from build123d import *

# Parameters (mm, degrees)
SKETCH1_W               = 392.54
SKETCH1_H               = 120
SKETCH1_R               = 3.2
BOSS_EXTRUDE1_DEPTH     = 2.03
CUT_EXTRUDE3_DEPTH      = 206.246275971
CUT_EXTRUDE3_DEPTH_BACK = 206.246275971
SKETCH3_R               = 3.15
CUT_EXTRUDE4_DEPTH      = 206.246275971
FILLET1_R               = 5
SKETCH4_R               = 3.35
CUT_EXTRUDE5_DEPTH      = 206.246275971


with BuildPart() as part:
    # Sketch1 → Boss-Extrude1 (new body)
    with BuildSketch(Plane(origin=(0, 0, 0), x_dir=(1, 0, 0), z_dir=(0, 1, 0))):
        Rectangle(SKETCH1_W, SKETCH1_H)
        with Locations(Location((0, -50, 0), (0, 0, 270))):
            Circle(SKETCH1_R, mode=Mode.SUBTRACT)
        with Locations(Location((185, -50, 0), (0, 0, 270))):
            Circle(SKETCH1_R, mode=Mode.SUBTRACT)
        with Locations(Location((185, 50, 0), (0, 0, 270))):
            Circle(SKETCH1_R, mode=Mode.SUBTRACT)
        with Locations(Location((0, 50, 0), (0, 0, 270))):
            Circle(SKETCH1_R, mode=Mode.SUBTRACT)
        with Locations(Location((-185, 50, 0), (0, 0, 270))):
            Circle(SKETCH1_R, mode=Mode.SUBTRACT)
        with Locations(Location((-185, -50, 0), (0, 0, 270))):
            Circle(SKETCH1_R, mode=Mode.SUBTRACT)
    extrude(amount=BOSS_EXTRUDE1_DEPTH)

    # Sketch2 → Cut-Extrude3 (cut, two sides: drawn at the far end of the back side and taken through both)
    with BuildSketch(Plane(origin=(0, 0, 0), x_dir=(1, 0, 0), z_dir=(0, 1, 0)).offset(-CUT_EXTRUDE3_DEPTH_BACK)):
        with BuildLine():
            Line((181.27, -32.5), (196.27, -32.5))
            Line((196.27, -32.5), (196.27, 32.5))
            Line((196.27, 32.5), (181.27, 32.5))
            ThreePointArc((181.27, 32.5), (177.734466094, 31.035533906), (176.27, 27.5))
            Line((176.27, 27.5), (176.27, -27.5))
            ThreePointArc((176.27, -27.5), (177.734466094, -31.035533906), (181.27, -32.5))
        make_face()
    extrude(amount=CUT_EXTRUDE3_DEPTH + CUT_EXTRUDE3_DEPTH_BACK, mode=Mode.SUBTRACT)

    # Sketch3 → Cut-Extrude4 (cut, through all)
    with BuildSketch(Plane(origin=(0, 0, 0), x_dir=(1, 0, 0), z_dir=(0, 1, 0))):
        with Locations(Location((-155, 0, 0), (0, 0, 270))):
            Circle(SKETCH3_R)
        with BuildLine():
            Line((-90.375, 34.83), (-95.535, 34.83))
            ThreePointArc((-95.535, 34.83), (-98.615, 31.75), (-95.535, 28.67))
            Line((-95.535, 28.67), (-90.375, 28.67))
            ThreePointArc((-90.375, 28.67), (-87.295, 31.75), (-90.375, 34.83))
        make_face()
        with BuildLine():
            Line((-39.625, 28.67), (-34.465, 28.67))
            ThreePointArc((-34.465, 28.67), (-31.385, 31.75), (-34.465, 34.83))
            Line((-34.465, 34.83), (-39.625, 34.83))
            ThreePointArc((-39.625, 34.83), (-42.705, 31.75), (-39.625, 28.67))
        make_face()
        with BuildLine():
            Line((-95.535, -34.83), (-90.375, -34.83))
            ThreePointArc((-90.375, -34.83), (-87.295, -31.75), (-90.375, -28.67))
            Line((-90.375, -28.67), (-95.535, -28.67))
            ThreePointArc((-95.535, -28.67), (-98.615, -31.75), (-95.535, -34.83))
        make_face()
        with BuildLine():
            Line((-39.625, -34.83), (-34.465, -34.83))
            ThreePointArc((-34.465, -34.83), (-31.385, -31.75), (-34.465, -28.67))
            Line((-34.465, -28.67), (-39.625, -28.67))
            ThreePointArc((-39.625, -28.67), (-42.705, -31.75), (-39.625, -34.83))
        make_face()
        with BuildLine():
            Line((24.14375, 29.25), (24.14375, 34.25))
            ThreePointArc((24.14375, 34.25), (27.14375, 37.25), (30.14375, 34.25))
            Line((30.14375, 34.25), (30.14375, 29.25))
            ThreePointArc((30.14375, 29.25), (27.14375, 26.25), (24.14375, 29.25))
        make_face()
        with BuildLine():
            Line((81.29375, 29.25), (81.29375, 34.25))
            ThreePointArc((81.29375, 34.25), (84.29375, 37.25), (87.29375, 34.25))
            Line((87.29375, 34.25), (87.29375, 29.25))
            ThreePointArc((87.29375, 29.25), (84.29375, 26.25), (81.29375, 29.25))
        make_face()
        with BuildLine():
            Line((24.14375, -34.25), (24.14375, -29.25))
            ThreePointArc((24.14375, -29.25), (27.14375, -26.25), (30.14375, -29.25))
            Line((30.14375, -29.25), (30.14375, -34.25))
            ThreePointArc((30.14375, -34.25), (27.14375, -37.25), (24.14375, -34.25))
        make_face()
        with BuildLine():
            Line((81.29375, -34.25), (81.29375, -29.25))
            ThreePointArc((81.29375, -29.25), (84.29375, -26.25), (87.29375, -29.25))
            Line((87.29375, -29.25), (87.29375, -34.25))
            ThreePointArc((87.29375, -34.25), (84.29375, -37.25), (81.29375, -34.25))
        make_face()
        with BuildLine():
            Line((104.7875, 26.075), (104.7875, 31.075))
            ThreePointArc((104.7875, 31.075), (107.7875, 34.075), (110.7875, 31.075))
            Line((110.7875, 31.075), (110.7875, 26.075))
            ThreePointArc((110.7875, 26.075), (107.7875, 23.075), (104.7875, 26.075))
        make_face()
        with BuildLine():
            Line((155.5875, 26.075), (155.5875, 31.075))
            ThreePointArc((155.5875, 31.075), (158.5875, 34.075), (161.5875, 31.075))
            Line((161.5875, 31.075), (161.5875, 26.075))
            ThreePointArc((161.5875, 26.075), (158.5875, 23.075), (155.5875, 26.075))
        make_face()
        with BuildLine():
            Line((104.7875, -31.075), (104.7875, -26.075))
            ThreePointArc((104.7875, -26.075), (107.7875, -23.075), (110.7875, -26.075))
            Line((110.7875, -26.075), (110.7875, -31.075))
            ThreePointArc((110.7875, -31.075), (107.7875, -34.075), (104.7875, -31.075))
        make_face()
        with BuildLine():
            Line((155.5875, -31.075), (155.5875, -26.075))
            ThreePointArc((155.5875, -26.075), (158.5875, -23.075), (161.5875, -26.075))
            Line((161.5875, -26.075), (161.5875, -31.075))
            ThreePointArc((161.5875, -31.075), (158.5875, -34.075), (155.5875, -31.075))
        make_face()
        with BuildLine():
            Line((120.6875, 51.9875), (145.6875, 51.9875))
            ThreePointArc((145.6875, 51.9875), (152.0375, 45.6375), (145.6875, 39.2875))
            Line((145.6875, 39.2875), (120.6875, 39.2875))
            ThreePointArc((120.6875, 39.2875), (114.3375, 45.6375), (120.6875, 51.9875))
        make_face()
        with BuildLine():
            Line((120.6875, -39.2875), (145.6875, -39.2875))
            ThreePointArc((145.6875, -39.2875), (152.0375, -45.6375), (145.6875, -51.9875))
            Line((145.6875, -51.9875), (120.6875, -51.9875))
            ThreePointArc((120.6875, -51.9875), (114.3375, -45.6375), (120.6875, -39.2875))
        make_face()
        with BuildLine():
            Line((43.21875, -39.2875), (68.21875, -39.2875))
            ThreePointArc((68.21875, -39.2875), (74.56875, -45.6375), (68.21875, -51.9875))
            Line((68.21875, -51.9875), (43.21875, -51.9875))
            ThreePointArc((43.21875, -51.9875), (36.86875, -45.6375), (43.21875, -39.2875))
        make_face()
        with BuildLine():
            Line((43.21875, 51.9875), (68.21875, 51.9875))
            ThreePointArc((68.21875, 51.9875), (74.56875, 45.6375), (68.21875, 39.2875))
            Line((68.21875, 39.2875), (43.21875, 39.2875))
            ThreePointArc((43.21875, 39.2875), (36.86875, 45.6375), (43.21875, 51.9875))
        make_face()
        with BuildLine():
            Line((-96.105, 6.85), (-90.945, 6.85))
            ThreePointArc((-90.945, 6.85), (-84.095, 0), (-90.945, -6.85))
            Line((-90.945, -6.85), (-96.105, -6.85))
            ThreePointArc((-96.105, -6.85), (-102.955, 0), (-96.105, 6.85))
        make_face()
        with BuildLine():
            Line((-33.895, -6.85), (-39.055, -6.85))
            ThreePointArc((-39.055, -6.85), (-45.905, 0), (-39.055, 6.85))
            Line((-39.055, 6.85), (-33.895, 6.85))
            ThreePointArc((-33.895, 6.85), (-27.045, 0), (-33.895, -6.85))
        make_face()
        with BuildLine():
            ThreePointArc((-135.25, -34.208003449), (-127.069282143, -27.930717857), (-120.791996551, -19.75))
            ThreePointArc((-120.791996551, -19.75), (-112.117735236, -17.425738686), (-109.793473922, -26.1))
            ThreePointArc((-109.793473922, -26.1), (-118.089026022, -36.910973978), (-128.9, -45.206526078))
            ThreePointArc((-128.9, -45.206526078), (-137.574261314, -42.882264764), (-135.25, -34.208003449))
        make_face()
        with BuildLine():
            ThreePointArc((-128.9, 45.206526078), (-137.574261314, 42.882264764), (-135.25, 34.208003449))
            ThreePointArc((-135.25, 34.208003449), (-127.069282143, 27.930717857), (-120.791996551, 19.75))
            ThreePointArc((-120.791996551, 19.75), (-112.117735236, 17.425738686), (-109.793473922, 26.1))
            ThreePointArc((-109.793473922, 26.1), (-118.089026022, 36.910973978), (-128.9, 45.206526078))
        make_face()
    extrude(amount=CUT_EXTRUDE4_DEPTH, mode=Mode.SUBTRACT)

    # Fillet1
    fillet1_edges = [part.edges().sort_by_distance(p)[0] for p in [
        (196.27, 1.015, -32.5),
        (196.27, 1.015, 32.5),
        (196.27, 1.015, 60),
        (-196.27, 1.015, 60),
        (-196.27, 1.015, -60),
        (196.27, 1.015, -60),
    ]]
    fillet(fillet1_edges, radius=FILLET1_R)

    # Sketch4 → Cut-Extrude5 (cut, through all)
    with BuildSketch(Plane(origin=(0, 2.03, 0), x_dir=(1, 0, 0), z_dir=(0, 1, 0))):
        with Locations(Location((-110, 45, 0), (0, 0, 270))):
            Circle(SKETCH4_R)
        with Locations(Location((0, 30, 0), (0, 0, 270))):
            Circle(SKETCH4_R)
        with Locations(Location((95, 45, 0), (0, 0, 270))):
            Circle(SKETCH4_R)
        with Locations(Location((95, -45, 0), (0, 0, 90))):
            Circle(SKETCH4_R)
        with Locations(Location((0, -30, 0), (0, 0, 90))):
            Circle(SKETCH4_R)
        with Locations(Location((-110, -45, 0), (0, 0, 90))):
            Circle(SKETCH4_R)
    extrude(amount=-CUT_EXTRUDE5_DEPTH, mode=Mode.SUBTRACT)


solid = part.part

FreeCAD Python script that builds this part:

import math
import FreeCAD as App
import Part
import Sketcher
from FreeCAD import Vector


def edges_at(feature, points):
    """Names of the edges that pass closest to the given points."""
    edges = feature.Shape.Edges
    near = lambda p: min(range(len(edges)), key=lambda i: edges[i].distToShape(Part.Vertex(*p))[0])
    return sorted({f"Edge{near(p) + 1}" for p in points})


def add_polygon(sketch, points):
    """Adds a closed chain of lines whose ends are joined by coincident constraints."""
    first, n = sketch.GeometryCount, len(points)
    for a, b in zip(points, points[1:] + points[:1]):
        sketch.addGeometry(Part.LineSegment(App.Vector(*a, 0), App.Vector(*b, 0)), False)
    for i in range(n):
        sketch.addConstraint(Sketcher.Constraint("Coincident", first + i, 2, first + (i + 1) % n, 1))

doc = App.newDocument("Part")
body = doc.addObject("PartDesign::Body", "Body")

# Sketch on XZ plane
sketch1 = body.newObject("Sketcher::SketchObject", "Sketch")
sketch1.AttachmentSupport = (doc.getObject("XZ_Plane"), [""])
sketch1.MapMode = "FlatFace"
add_polygon(sketch1, [(-196.27, -60), (-196.27, 60), (196.27, 60), (196.27, -60)])  # lines 0-3
sketch1.addGeometry(Part.Circle(Vector(-185, 50, 0), Vector(0, 0, 1), 3.2), False)  # 4
sketch1.addGeometry(Part.Circle(Vector(0, 50, 0), Vector(0, 0, 1), 3.2), False)  # 5
sketch1.addGeometry(Part.Circle(Vector(185, 50, 0), Vector(0, 0, 1), 3.2), False)  # 6
sketch1.addGeometry(Part.Circle(Vector(-185, -50, 0), Vector(0, 0, 1), 3.2), False)  # 7
sketch1.addGeometry(Part.Circle(Vector(0, -50, 0), Vector(0, 0, 1), 3.2), False)  # 8
sketch1.addGeometry(Part.Circle(Vector(185, -50, 0), Vector(0, 0, 1), 3.2), False)  # 9
sketch1.addConstraint(Sketcher.Constraint("Vertical", 0))
sketch1.addConstraint(Sketcher.Constraint("Horizontal", 1))
sketch1.addConstraint(Sketcher.Constraint("Vertical", 2))
sketch1.addConstraint(Sketcher.Constraint("Horizontal", 3))
sketch1.addConstraint(Sketcher.Constraint("Equal", 4, 5))
sketch1.addConstraint(Sketcher.Constraint("Equal", 5, 6))
sketch1.addConstraint(Sketcher.Constraint("Equal", 6, 7))
sketch1.addConstraint(Sketcher.Constraint("Equal", 7, 8))
sketch1.addConstraint(Sketcher.Constraint("Equal", 8, 9))
sketch1.addConstraint(Sketcher.Constraint("Symmetric", 6, 3, 7, 3, -1, 1))
sketch1.addConstraint(Sketcher.Constraint("Symmetric", 5, 3, 8, 3, -1, 1))
sketch1.addConstraint(Sketcher.Constraint("Symmetric", 4, 3, 9, 3, -1, 1))
sketch1.addConstraint(Sketcher.Constraint("Symmetric", 0, 2, 2, 2, -1, 1))
sketch1.addConstraint(Sketcher.Constraint("Symmetric", 4, 3, 6, 3, -2))
sketch1.addConstraint(Sketcher.Constraint("PointOnObject", 5, 3, -2))
sketch1.addConstraint(Sketcher.Constraint("Horizontal", 4, 3, 5, 3))
sketch1.addConstraint(Sketcher.Constraint("Diameter", 4, 6.4))
sketch1.addConstraint(Sketcher.Constraint("DistanceY", 0, 1, 0, 2, 120.0))
sketch1.addConstraint(Sketcher.Constraint("DistanceX", 4, 3, -1, 1, 185.0))
sketch1.addConstraint(Sketcher.Constraint("DistanceY", -1, 1, 4, 3, 50.0))
sketch1.addConstraint(Sketcher.Constraint("DistanceX", 1, 1, 1, 2, 392.54))
pad1 = body.newObject("PartDesign::Pad", "Pad")
pad1.Profile = sketch1
pad1.Length = 2.03
pad1.Reversed = True

# Sketch on XZ plane
sketch2 = body.newObject("Sketcher::SketchObject", "Sketch001")
sketch2.AttachmentSupport = (doc.getObject("XZ_Plane"), [""])
sketch2.MapMode = "FlatFace"
sketch2.addGeometry(Part.LineSegment(Vector(181.27, 32.5, 0), Vector(196.27, 32.5, 0)), False)
sketch2.addGeometry(Part.LineSegment(Vector(196.27, 32.5, 0), Vector(196.27, -32.5, 0)), False)
sketch2.addGeometry(Part.LineSegment(Vector(196.27, -32.5, 0), Vector(181.27, -32.5, 0)), False)
sketch2.addGeometry(Part.ArcOfCircle(Part.Circle(Vector(181.27, -27.5, 0), Vector(0, 0, 1), 5), math.radians(180), math.radians(270)), False)
sketch2.addGeometry(Part.LineSegment(Vector(176.27, -27.5, 0), Vector(176.27, 27.5, 0)), False)
sketch2.addGeometry(Part.ArcOfCircle(Part.Circle(Vector(181.27, 27.5, 0), Vector(0, 0, 1), 5), math.radians(90), math.radians(180)), False)
sketch2.addConstraint(Sketcher.Constraint("Coincident", 0, 2, 1, 1))
sketch2.addConstraint(Sketcher.Constraint("Coincident", 1, 2, 2, 1))
sketch2.addConstraint(Sketcher.Constraint("Tangent", 2, 2, 3, 2))
sketch2.addConstraint(Sketcher.Constraint("Tangent", 3, 1, 4, 1))
sketch2.addConstraint(Sketcher.Constraint("Tangent", 4, 2, 5, 2))
sketch2.addConstraint(Sketcher.Constraint("Tangent", 5, 1, 0, 1))
sketch2.addConstraint(Sketcher.Constraint("Horizontal", 0))
sketch2.addConstraint(Sketcher.Constraint("Vertical", 1))
sketch2.addConstraint(Sketcher.Constraint("Horizontal", 2))
sketch2.addConstraint(Sketcher.Constraint("Vertical", 4))
sketch2.addConstraint(Sketcher.Constraint("Equal", 3, 5))
sketch2.addConstraint(Sketcher.Constraint("Radius", 3, 5.0))
sketch2.addConstraint(Sketcher.Constraint("DistanceX", 0, 1, 0, 2, 15.0))
sketch2.addConstraint(Sketcher.Constraint("DistanceY", 1, 2, 1, 1, 65.0))
sketch2.addConstraint(Sketcher.Constraint("DistanceY", 3, 3, -1, 1, 27.5))
sketch2.addConstraint(Sketcher.Constraint("DistanceX", -1, 1, 3, 3, 181.27))
pocket1 = body.newObject("PartDesign::Pocket", "Pocket")
pocket1.Profile = sketch2
pocket1.Type = "ThroughAll"
pocket1.Midplane = True

# Sketch on XZ plane
sketch3 = body.newObject("Sketcher::SketchObject", "Sketch002")
sketch3.AttachmentSupport = (doc.getObject("XZ_Plane"), [""])
sketch3.MapMode = "FlatFace"
sketch3.addGeometry(Part.Circle(Vector(-155, 0, 0), Vector(0, 0, 1), 3.15), False)
sketch3.addGeometry(Part.LineSegment(Vector(-90.375, -34.83, 0), Vector(-95.535, -34.83, 0)), False)
sketch3.addGeometry(Part.ArcOfCircle(Part.Circle(Vector(-95.535, -31.75, 0), Vector(0, 0, 1), 3.08), math.radians(90), math.radians(270)), False)
sketch3.addGeometry(Part.LineSegment(Vector(-95.535, -28.67, 0), Vector(-90.375, -28.67, 0)), False)
sketch3.addGeometry(Part.ArcOfCircle(Part.Circle(Vector(-90.375, -31.75, 0), Vector(0, 0, 1), 3.08), math.radians(-90), math.radians(90)), False)
sketch3.addGeometry(Part.LineSegment(Vector(-39.625, -28.67, 0), Vector(-34.465, -28.67, 0)), False)
sketch3.addGeometry(Part.ArcOfCircle(Part.Circle(Vector(-34.465, -31.75, 0), Vector(0, 0, 1), 3.08), math.radians(-90), math.radians(90)), False)
sketch3.addGeometry(Part.LineSegment(Vector(-34.465, -34.83, 0), Vector(-39.625, -34.83, 0)), False)
sketch3.addGeometry(Part.ArcOfCircle(Part.Circle(Vector(-39.625, -31.75, 0), Vector(0, 0, 1), 3.08), math.radians(90), math.radians(270)), False)
sketch3.addGeometry(Part.LineSegment(Vector(-95.535, 34.83, 0), Vector(-90.375, 34.83, 0)), False)
sketch3.addGeometry(Part.ArcOfCircle(Part.Circle(Vector(-90.375, 31.75, 0), Vector(0, 0, 1), 3.08), math.radians(-90), math.radians(90)), False)
sketch3.addGeometry(Part.LineSegment(Vector(-90.375, 28.67, 0), Vector(-95.535, 28.67, 0)), False)
sketch3.addGeometry(Part.ArcOfCircle(Part.Circle(Vector(-95.535, 31.75, 0), Vector(0, 0, 1), 3.08), math.radians(90), math.radians(270)), False)
sketch3.addGeometry(Part.LineSegment(Vector(-39.625, 34.83, 0), Vector(-34.465, 34.83, 0)), False)
sketch3.addGeometry(Part.ArcOfCircle(Part.Circle(Vector(-34.465, 31.75, 0), Vector(0, 0, 1), 3.08), math.radians(-90), math.radians(90)), False)
sketch3.addGeometry(Part.LineSegment(Vector(-34.465, 28.67, 0), Vector(-39.625, 28.67, 0)), False)
sketch3.addGeometry(Part.ArcOfCircle(Part.Circle(Vector(-39.625, 31.75, 0), Vector(0, 0, 1), 3.08), math.radians(90), math.radians(270)), False)
sketch3.addGeometry(Part.LineSegment(Vector(24.14375, -34.25, 0), Vector(24.14375, -29.25, 0)), False)
sketch3.addGeometry(Part.ArcOfCircle(Part.Circle(Vector(27.14375, -29.25, 0), Vector(0, 0, 1), 3), math.radians(0), math.radians(180)), False)
sketch3.addGeometry(Part.LineSegment(Vector(30.14375, -29.25, 0), Vector(30.14375, -34.25, 0)), False)
sketch3.addGeometry(Part.ArcOfCircle(Part.Circle(Vector(27.14375, -34.25, 0), Vector(0, 0, 1), 3), math.radians(180), math.radians(360)), False)
sketch3.addGeometry(Part.LineSegment(Vector(81.29375, -34.25, 0), Vector(81.29375, -29.25, 0)), False)
sketch3.addGeometry(Part.ArcOfCircle(Part.Circle(Vector(84.29375, -29.25, 0), Vector(0, 0, 1), 3), math.radians(0), math.radians(180)), False)
sketch3.addGeometry(Part.LineSegment(Vector(87.29375, -29.25, 0), Vector(87.29375, -34.25, 0)), False)
sketch3.addGeometry(Part.ArcOfCircle(Part.Circle(Vector(84.29375, -34.25, 0), Vector(0, 0, 1), 3), math.radians(180), math.radians(360)), False)
sketch3.addGeometry(Part.LineSegment(Vector(24.14375, 29.25, 0), Vector(24.14375, 34.25, 0)), False)
sketch3.addGeometry(Part.ArcOfCircle(Part.Circle(Vector(27.14375, 34.25, 0), Vector(0, 0, 1), 3), math.radians(0), math.radians(180)), False)
sketch3.addGeometry(Part.LineSegment(Vector(30.14375, 34.25, 0), Vector(30.14375, 29.25, 0)), False)
sketch3.addGeometry(Part.ArcOfCircle(Part.Circle(Vector(27.14375, 29.25, 0), Vector(0, 0, 1), 3), math.radians(180), math.radians(360)), False)
sketch3.addGeometry(Part.LineSegment(Vector(81.29375, 29.25, 0), Vector(81.29375, 34.25, 0)), False)
sketch3.addGeometry(Part.ArcOfCircle(Part.Circle(Vector(84.29375, 34.25, 0), Vector(0, 0, 1), 3), math.radians(0), math.radians(180)), False)
sketch3.addGeometry(Part.LineSegment(Vector(87.29375, 34.25, 0), Vector(87.29375, 29.25, 0)), False)
sketch3.addGeometry(Part.ArcOfCircle(Part.Circle(Vector(84.29375, 29.25, 0), Vector(0, 0, 1), 3), math.radians(180), math.radians(360)), False)
sketch3.addGeometry(Part.LineSegment(Vector(104.7875, -31.075, 0), Vector(104.7875, -26.075, 0)), False)
sketch3.addGeometry(Part.ArcOfCircle(Part.Circle(Vector(107.7875, -26.075, 0), Vector(0, 0, 1), 3), math.radians(0), math.radians(180)), False)
sketch3.addGeometry(Part.LineSegment(Vector(110.7875, -26.075, 0), Vector(110.7875, -31.075, 0)), False)
sketch3.addGeometry(Part.ArcOfCircle(Part.Circle(Vector(107.7875, -31.075, 0), Vector(0, 0, 1), 3), math.radians(180), math.radians(360)), False)
sketch3.addGeometry(Part.LineSegment(Vector(155.5875, -31.075, 0), Vector(155.5875, -26.075, 0)), False)
sketch3.addGeometry(Part.ArcOfCircle(Part.Circle(Vector(158.5875, -26.075, 0), Vector(0, 0, 1), 3), math.radians(0), math.radians(180)), False)
sketch3.addGeometry(Part.LineSegment(Vector(161.5875, -26.075, 0), Vector(161.5875, -31.075, 0)), False)
sketch3.addGeometry(Part.ArcOfCircle(Part.Circle(Vector(158.5875, -31.075, 0), Vector(0, 0, 1), 3), math.radians(180), math.radians(360)), False)
sketch3.addGeometry(Part.LineSegment(Vector(104.7875, 26.075, 0), Vector(104.7875, 31.075, 0)), False)
sketch3.addGeometry(Part.ArcOfCircle(Part.Circle(Vector(107.7875, 31.075, 0), Vector(0, 0, 1), 3), math.radians(0), math.radians(180)), False)
sketch3.addGeometry(Part.LineSegment(Vector(110.7875, 31.075, 0), Vector(110.7875, 26.075, 0)), False)
sketch3.addGeometry(Part.ArcOfCircle(Part.Circle(Vector(107.7875, 26.075, 0), Vector(0, 0, 1), 3), math.radians(180), math.radians(360)), False)
sketch3.addGeometry(Part.LineSegment(Vector(155.5875, 26.075, 0), Vector(155.5875, 31.075, 0)), False)
sketch3.addGeometry(Part.ArcOfCircle(Part.Circle(Vector(158.5875, 31.075, 0), Vector(0, 0, 1), 3), math.radians(0), math.radians(180)), False)
sketch3.addGeometry(Part.LineSegment(Vector(161.5875, 31.075, 0), Vector(161.5875, 26.075, 0)), False)
sketch3.addGeometry(Part.ArcOfCircle(Part.Circle(Vector(158.5875, 26.075, 0), Vector(0, 0, 1), 3), math.radians(180), math.radians(360)), False)
sketch3.addGeometry(Part.LineSegment(Vector(145.6875, -51.9875, 0), Vector(120.6875, -51.9875, 0)), False)
sketch3.addGeometry(Part.ArcOfCircle(Part.Circle(Vector(120.6875, -45.6375, 0), Vector(0, 0, 1), 6.35), math.radians(90), math.radians(270)), False)
sketch3.addGeometry(Part.LineSegment(Vector(120.6875, -39.2875, 0), Vector(145.6875, -39.2875, 0)), False)
sketch3.addGeometry(Part.ArcOfCircle(Part.Circle(Vector(145.6875, -45.6375, 0), Vector(0, 0, 1), 6.35), math.radians(-90), math.radians(90)), False)
sketch3.addGeometry(Part.LineSegment(Vector(145.6875, 39.2875, 0), Vector(120.6875, 39.2875, 0)), False)
sketch3.addGeometry(Part.ArcOfCircle(Part.Circle(Vector(120.6875, 45.6375, 0), Vector(0, 0, 1), 6.35), math.radians(90), math.radians(270)), False)
sketch3.addGeometry(Part.LineSegment(Vector(120.6875, 51.9875, 0), Vector(145.6875, 51.9875, 0)), False)
sketch3.addGeometry(Part.ArcOfCircle(Part.Circle(Vector(145.6875, 45.6375, 0), Vector(0, 0, 1), 6.35), math.radians(-90), math.radians(90)), False)
sketch3.addGeometry(Part.LineSegment(Vector(68.21875, 39.2875, 0), Vector(43.21875, 39.2875, 0)), False)
sketch3.addGeometry(Part.ArcOfCircle(Part.Circle(Vector(43.21875, 45.6375, 0), Vector(0, 0, 1), 6.35), math.radians(90), math.radians(270)), False)
sketch3.addGeometry(Part.LineSegment(Vector(43.21875, 51.9875, 0), Vector(68.21875, 51.9875, 0)), False)
sketch3.addGeometry(Part.ArcOfCircle(Part.Circle(Vector(68.21875, 45.6375, 0), Vector(0, 0, 1), 6.35), math.radians(-90), math.radians(90)), False)
sketch3.addGeometry(Part.LineSegment(Vector(68.21875, -51.9875, 0), Vector(43.21875, -51.9875, 0)), False)
sketch3.addGeometry(Part.ArcOfCircle(Part.Circle(Vector(43.21875, -45.6375, 0), Vector(0, 0, 1), 6.35), math.radians(90), math.radians(270)), False)
sketch3.addGeometry(Part.LineSegment(Vector(43.21875, -39.2875, 0), Vector(68.21875, -39.2875, 0)), False)
sketch3.addGeometry(Part.ArcOfCircle(Part.Circle(Vector(68.21875, -45.6375, 0), Vector(0, 0, 1), 6.35), math.radians(-90), math.radians(90)), False)
sketch3.addGeometry(Part.LineSegment(Vector(-90.945, -6.85, 0), Vector(-96.105, -6.85, 0)), False)
sketch3.addGeometry(Part.ArcOfCircle(Part.Circle(Vector(-96.105, 0, 0), Vector(0, 0, 1), 6.85), math.radians(90), math.radians(270)), False)
sketch3.addGeometry(Part.LineSegment(Vector(-96.105, 6.85, 0), Vector(-90.945, 6.85, 0)), False)
sketch3.addGeometry(Part.ArcOfCircle(Part.Circle(Vector(-90.945, 0, 0), Vector(0, 0, 1), 6.85), math.radians(-90), math.radians(90)), False)
sketch3.addGeometry(Part.LineSegment(Vector(-39.055, 6.85, 0), Vector(-33.895, 6.85, 0)), False)
sketch3.addGeometry(Part.ArcOfCircle(Part.Circle(Vector(-33.895, 0, 0), Vector(0, 0, 1), 6.85), math.radians(-90), math.radians(90)), False)
sketch3.addGeometry(Part.LineSegment(Vector(-33.895, -6.85, 0), Vector(-39.055, -6.85, 0)), False)
sketch3.addGeometry(Part.ArcOfCircle(Part.Circle(Vector(-39.055, 0, 0), Vector(0, 0, 1), 6.85), math.radians(90), math.radians(270)), False)
sketch3.addGeometry(Part.ArcOfCircle(Part.Circle(Vector(-155, 0, 0), Vector(0, 0, 1), 39.5), math.radians(30), math.radians(60)), False)
sketch3.addGeometry(Part.ArcOfCircle(Part.Circle(Vector(-132.075, 39.707265, 0), Vector(0, 0, 1), 6.35), math.radians(60), math.radians(240)), False)
sketch3.addGeometry(Part.ArcOfCircle(Part.Circle(Vector(-155, 0, 0), Vector(0, 0, 1), 52.2), math.radians(30), math.radians(60)), False)
sketch3.addGeometry(Part.ArcOfCircle(Part.Circle(Vector(-115.292735, 22.925, 0), Vector(0, 0, 1), 6.35), math.radians(-150), math.radians(30)), False)
sketch3.addGeometry(Part.ArcOfCircle(Part.Circle(Vector(-132.075, -39.707265, 0), Vector(0, 0, 1), 6.35), math.radians(120), math.radians(300)), False)
sketch3.addGeometry(Part.ArcOfCircle(Part.Circle(Vector(-155, 0, 0), Vector(0, 0, 1), 39.5), math.radians(-60), math.radians(-30)), False)
sketch3.addGeometry(Part.ArcOfCircle(Part.Circle(Vector(-115.292735, -22.925, 0), Vector(0, 0, 1), 6.35), math.radians(-30), math.radians(150)), False)
sketch3.addGeometry(Part.ArcOfCircle(Part.Circle(Vector(-155, 0, 0), Vector(0, 0, 1), 52.2), math.radians(-60), math.radians(-30)), False)
sketch3.addConstraint(Sketcher.Constraint("Tangent", 1, 2, 2, 2))
sketch3.addConstraint(Sketcher.Constraint("Tangent", 2, 1, 3, 1))
sketch3.addConstraint(Sketcher.Constraint("Tangent", 3, 2, 4, 2))
sketch3.addConstraint(Sketcher.Constraint("Tangent", 4, 1, 1, 1))
sketch3.addConstraint(Sketcher.Constraint("Tangent", 5, 2, 6, 2))
sketch3.addConstraint(Sketcher.Constraint("Tangent", 6, 1, 7, 1))
sketch3.addConstraint(Sketcher.Constraint("Tangent", 7, 2, 8, 2))
sketch3.addConstraint(Sketcher.Constraint("Tangent", 8, 1, 5, 1))
sketch3.addConstraint(Sketcher.Constraint("Tangent", 9, 2, 10, 2))
sketch3.addConstraint(Sketcher.Constraint("Tangent", 10, 1, 11, 1))
sketch3.addConstraint(Sketcher.Constraint("Tangent", 11, 2, 12, 2))
sketch3.addConstraint(Sketcher.Constraint("Tangent", 12, 1, 9, 1))
sketch3.addConstraint(Sketcher.Constraint("Tangent", 13, 2, 14, 2))
sketch3.addConstraint(Sketcher.Constraint("Tangent", 14, 1, 15, 1))
sketch3.addConstraint(Sketcher.Constraint("Tangent", 15, 2, 16, 2))
sketch3.addConstraint(Sketcher.Constraint("Tangent", 16, 1, 13, 1))
sketch3.addConstraint(Sketcher.Constraint("Tangent", 17, 2, 18, 2))
sketch3.addConstraint(Sketcher.Constraint("Tangent", 18, 1, 19, 1))
sketch3.addConstraint(Sketcher.Constraint("Tangent", 19, 2, 20, 2))
sketch3.addConstraint(Sketcher.Constraint("Tangent", 20, 1, 17, 1))
sketch3.addConstraint(Sketcher.Constraint("Tangent", 21, 2, 22, 2))
sketch3.addConstraint(Sketcher.Constraint("Tangent", 22, 1, 23, 1))
sketch3.addConstraint(Sketcher.Constraint("Tangent", 23, 2, 24, 2))
sketch3.addConstraint(Sketcher.Constraint("Tangent", 24, 1, 21, 1))
sketch3.addConstraint(Sketcher.Constraint("Tangent", 25, 2, 26, 2))
sketch3.addConstraint(Sketcher.Constraint("Tangent", 26, 1, 27, 1))
sketch3.addConstraint(Sketcher.Constraint("Tangent", 27, 2, 28, 2))
sketch3.addConstraint(Sketcher.Constraint("Tangent", 28, 1, 25, 1))
sketch3.addConstraint(Sketcher.Constraint("Tangent", 29, 2, 30, 2))
sketch3.addConstraint(Sketcher.Constraint("Tangent", 30, 1, 31, 1))
sketch3.addConstraint(Sketcher.Constraint("Tangent", 31, 2, 32, 2))
sketch3.addConstraint(Sketcher.Constraint("Tangent", 32, 1, 29, 1))
sketch3.addConstraint(Sketcher.Constraint("Tangent", 33, 2, 34, 2))
sketch3.addConstraint(Sketcher.Constraint("Tangent", 34, 1, 35, 1))
sketch3.addConstraint(Sketcher.Constraint("Tangent", 35, 2, 36, 2))
sketch3.addConstraint(Sketcher.Constraint("Tangent", 36, 1, 33, 1))
sketch3.addConstraint(Sketcher.Constraint("Tangent", 37, 2, 38, 2))
sketch3.addConstraint(Sketcher.Constraint("Tangent", 38, 1, 39, 1))
sketch3.addConstraint(Sketcher.Constraint("Tangent", 39, 2, 40, 2))
sketch3.addConstraint(Sketcher.Constraint("Tangent", 40, 1, 37, 1))
sketch3.addConstraint(Sketcher.Constraint("Tangent", 41, 2, 42, 2))
sketch3.addConstraint(Sketcher.Constraint("Tangent", 42, 1, 43, 1))
sketch3.addConstraint(Sketcher.Constraint("Tangent", 43, 2, 44, 2))
sketch3.addConstraint(Sketcher.Constraint("Tangent", 44, 1, 41, 1))
sketch3.addConstraint(Sketcher.Constraint("Tangent", 45, 2, 46, 2))
sketch3.addConstraint(Sketcher.Constraint("Tangent", 46, 1, 47, 1))
sketch3.addConstraint(Sketcher.Constraint("Tangent", 47, 2, 48, 2))
sketch3.addConstraint(Sketcher.Constraint("Tangent", 48, 1, 45, 1))
sketch3.addConstraint(Sketcher.Constraint("Tangent", 49, 2, 50, 2))
sketch3.addConstraint(Sketcher.Constraint("Tangent", 50, 1, 51, 1))
sketch3.addConstraint(Sketcher.Constraint("Tangent", 51, 2, 52, 2))
sketch3.addConstraint(Sketcher.Constraint("Tangent", 52, 1, 49, 1))
sketch3.addConstraint(Sketcher.Constraint("Tangent", 53, 2, 54, 2))
sketch3.addConstraint(Sketcher.Constraint("Tangent", 54, 1, 55, 1))
sketch3.addConstraint(Sketcher.Constraint("Tangent", 55, 2, 56, 2))
sketch3.addConstraint(Sketcher.Constraint("Tangent", 56, 1, 53, 1))
sketch3.addConstraint(Sketcher.Constraint("Tangent", 57, 2, 58, 2))
sketch3.addConstraint(Sketcher.Constraint("Tangent", 58, 1, 59, 1))
sketch3.addConstraint(Sketcher.Constraint("Tangent", 59, 2, 60, 2))
sketch3.addConstraint(Sketcher.Constraint("Tangent", 60, 1, 57, 1))
sketch3.addConstraint(Sketcher.Constraint("Tangent", 61, 2, 62, 2))
sketch3.addConstraint(Sketcher.Constraint("Tangent", 62, 1, 63, 1))
sketch3.addConstraint(Sketcher.Constraint("Tangent", 63, 2, 64, 2))
sketch3.addConstraint(Sketcher.Constraint("Tangent", 64, 1, 61, 1))
sketch3.addConstraint(Sketcher.Constraint("Tangent", 65, 2, 66, 2))
sketch3.addConstraint(Sketcher.Constraint("Tangent", 66, 1, 67, 1))
sketch3.addConstraint(Sketcher.Constraint("Tangent", 67, 2, 68, 2))
sketch3.addConstraint(Sketcher.Constraint("Tangent", 68, 1, 65, 1))
sketch3.addConstraint(Sketcher.Constraint("Tangent", 69, 2, 70, 2))
sketch3.addConstraint(Sketcher.Constraint("Tangent", 70, 1, 71, 1))
sketch3.addConstraint(Sketcher.Constraint("Tangent", 71, 2, 72, 2))
sketch3.addConstraint(Sketcher.Constraint("Tangent", 72, 1, 69, 1))
sketch3.addConstraint(Sketcher.Constraint("Tangent", 73, 2, 74, 2))
sketch3.addConstraint(Sketcher.Constraint("Tangent", 74, 1, 75, 2))
sketch3.addConstraint(Sketcher.Constraint("Tangent", 75, 1, 76, 2))
sketch3.addConstraint(Sketcher.Constraint("Tangent", 76, 1, 73, 1))
sketch3.addConstraint(Sketcher.Constraint("Tangent", 77, 1, 78, 1))
sketch3.addConstraint(Sketcher.Constraint("Tangent", 78, 2, 79, 2))
sketch3.addConstraint(Sketcher.Constraint("Tangent", 79, 1, 80, 2))
sketch3.addConstraint(Sketcher.Constraint("Tangent", 80, 1, 77, 2))
sketch3.addConstraint(Sketcher.Constraint("Horizontal", 1))
sketch3.addConstraint(Sketcher.Constraint("Horizontal", 3))
sketch3.addConstraint(Sketcher.Constraint("Horizontal", 5))
sketch3.addConstraint(Sketcher.Constraint("Horizontal", 7))
sketch3.addConstraint(Sketcher.Constraint("Horizontal", 9))
sketch3.addConstraint(Sketcher.Constraint("Horizontal", 11))
sketch3.addConstraint(Sketcher.Constraint("Horizontal", 13))
sketch3.addConstraint(Sketcher.Constraint("Horizontal", 15))
sketch3.addConstraint(Sketcher.Constraint("Vertical", 17))
sketch3.addConstraint(Sketcher.Constraint("Vertical", 19))
sketch3.addConstraint(Sketcher.Constraint("Vertical", 21))
sketch3.addConstraint(Sketcher.Constraint("Vertical", 23))
sketch3.addConstraint(Sketcher.Constraint("Vertical", 25))
sketch3.addConstraint(Sketcher.Constraint("Vertical", 27))
sketch3.addConstraint(Sketcher.Constraint("Vertical", 29))
sketch3.addConstraint(Sketcher.Constraint("Vertical", 31))
sketch3.addConstraint(Sketcher.Constraint("Vertical", 33))
sketch3.addConstraint(Sketcher.Constraint("Vertical", 35))
sketch3.addConstraint(Sketcher.Constraint("Vertical", 37))
sketch3.addConstraint(Sketcher.Constraint("Vertical", 39))
sketch3.addConstraint(Sketcher.Constraint("Vertical", 41))
sketch3.addConstraint(Sketcher.Constraint("Vertical", 43))
sketch3.addConstraint(Sketcher.Constraint("Vertical", 45))
sketch3.addConstraint(Sketcher.Constraint("Vertical", 47))
sketch3.addConstraint(Sketcher.Constraint("Horizontal", 49))
sketch3.addConstraint(Sketcher.Constraint("Horizontal", 51))
sketch3.addConstraint(Sketcher.Constraint("Horizontal", 53))
sketch3.addConstraint(Sketcher.Constraint("Horizontal", 55))
sketch3.addConstraint(Sketcher.Constraint("Horizontal", 57))
sketch3.addConstraint(Sketcher.Constraint("Horizontal", 59))
sketch3.addConstraint(Sketcher.Constraint("Horizontal", 61))
sketch3.addConstraint(Sketcher.Constraint("Horizontal", 63))
sketch3.addConstraint(Sketcher.Constraint("Horizontal", 65))
sketch3.addConstraint(Sketcher.Constraint("Horizontal", 67))
sketch3.addConstraint(Sketcher.Constraint("Horizontal", 69))
sketch3.addConstraint(Sketcher.Constraint("Horizontal", 71))
sketch3.addConstraint(Sketcher.Constraint("Coincident", 73, 3, 0, 3))
sketch3.addConstraint(Sketcher.Constraint("Coincident", 75, 3, 0, 3))
sketch3.addConstraint(Sketcher.Constraint("Coincident", 78, 3, 0, 3))
sketch3.addConstraint(Sketcher.Constraint("Coincident", 80, 3, 0, 3))
sketch3.addConstraint(Sketcher.Constraint("Equal", 4, 6))
sketch3.addConstraint(Sketcher.Constraint("Equal", 8, 10))
sketch3.addConstraint(Sketcher.Constraint("Equal", 12, 14))
sketch3.addConstraint(Sketcher.Constraint("Equal", 20, 22))
sketch3.addConstraint(Sketcher.Constraint("Equal", 24, 26))
sketch3.addConstraint(Sketcher.Constraint("Equal", 28, 30))
sketch3.addConstraint(Sketcher.Constraint("Equal", 32, 34))
sketch3.addConstraint(Sketcher.Constraint("Equal", 36, 38))
sketch3.addConstraint(Sketcher.Constraint("Equal", 40, 42))
sketch3.addConstraint(Sketcher.Constraint("Equal", 44, 46))
sketch3.addConstraint(Sketcher.Constraint("Equal", 52, 54))
sketch3.addConstraint(Sketcher.Constraint("Equal", 56, 58))
sketch3.addConstraint(Sketcher.Constraint("Equal", 60, 62))
sketch3.addConstraint(Sketcher.Constraint("Equal", 68, 70))
sketch3.addConstraint(Sketcher.Constraint("Equal", 64, 74))
sketch3.addConstraint(Sketcher.Constraint("Equal", 76, 77))
sketch3.addConstraint(Sketcher.Constraint("Equal", 73, 78))
sketch3.addConstraint(Sketcher.Constraint("Symmetric", 4, 3, 10, 3, -1))
sketch3.addConstraint(Sketcher.Constraint("Symmetric", 6, 3, 14, 3, -1))
sketch3.addConstraint(Sketcher.Constraint("Symmetric", 20, 3, 26, 3, -1))
sketch3.addConstraint(Sketcher.Constraint("Symmetric", 24, 3, 30, 3, -1))
sketch3.addConstraint(Sketcher.Constraint("Symmetric", 36, 3, 42, 3, -1))
sketch3.addConstraint(Sketcher.Constraint("Symmetric", 40, 3, 46, 3, -1))
sketch3.addConstraint(Sketcher.Constraint("Symmetric", 50, 3, 54, 3, -1))
sketch3.addConstraint(Sketcher.Constraint("Symmetric", 58, 3, 62, 3, -1))
sketch3.addConstraint(Sketcher.Constraint("Symmetric", 74, 3, 77, 3, -1))
sketch3.addConstraint(Sketcher.Constraint("PointOnObject", 66, 3, -1))
sketch3.addConstraint(Sketcher.Constraint("PointOnObject", 70, 3, -1))
sketch3.addConstraint(Sketcher.Constraint("Horizontal", 4, 3, 6, 3))
sketch3.addConstraint(Sketcher.Constraint("Horizontal", 18, 3, 22, 3))
sketch3.addConstraint(Sketcher.Constraint("Horizontal", 20, 3, 24, 3))
sketch3.addConstraint(Sketcher.Constraint("Horizontal", 28, 3, 32, 3))
sketch3.addConstraint(Sketcher.Constraint("Horizontal", 34, 3, 38, 3))
sketch3.addConstraint(Sketcher.Constraint("Horizontal", 36, 3, 40, 3))
sketch3.addConstraint(Sketcher.Constraint("Horizontal", 44, 3, 48, 3))
sketch3.addConstraint(Sketcher.Constraint("Horizontal", 56, 3, 58, 3))
sketch3.addConstraint(Sketcher.Constraint("Vertical", 2, 3, 12, 3))
sketch3.addConstraint(Sketcher.Constraint("Vertical", 8, 3, 16, 3))
sketch3.addConstraint(Sketcher.Constraint("Vertical", 52, 3, 56, 3))
sketch3.addConstraint(Sketcher.Constraint("Vertical", 60, 3, 64, 3))
sketch3.addConstraint(Sketcher.Constraint("Vertical", 76, 3, 79, 3))
sketch3.addConstraint(Sketcher.Constraint("Equal", 3, 5))
sketch3.addConstraint(Sketcher.Constraint("Equal", 55, 57))
sketch3.addConstraint(Sketcher.Constraint("Equal", 15, 65))
sketch3.addConstraint(Sketcher.Constraint("Equal", 67, 69))
sketch3.addConstraint(Sketcher.Constraint("Equal", 23, 25))
sketch3.addConstraint(Sketcher.Constraint("Equal", 31, 33))
sketch3.addConstraint(Sketcher.Constraint("Equal", 39, 41))
sketch3.addConstraint(Sketcher.Constraint("Radius", 18, 3.0))
sketch3.addConstraint(Sketcher.Constraint("Diameter", 0, 6.3))
sketch3.addConstraint(Sketcher.Constraint("Radius", 73, 39.5))
sketch3.addConstraint(Sketcher.Constraint("Radius", 75, 52.2))
sketch3.addConstraint(Sketcher.Constraint("DistanceX", 49, 2, 49, 1, 25.0))
sketch3.addConstraint(Sketcher.Constraint("DistanceY", 17, 1, 17, 2, 5.0))
sketch3.addConstraint(Sketcher.Constraint("Radius", 2, 3.08))
sketch3.addConstraint(Sketcher.Constraint("Radius", 66, 6.85))
sketch3.addConstraint(Sketcher.Constraint("DistanceX", 0, 3, -1, 1, 155.0))
sketch3.addConstraint(Sketcher.Constraint("DistanceX", 1, 2, 1, 1, 5.16))
sketch3.addConstraint(Sketcher.Constraint("DistanceX", 74, 1, -1, 1, 128.9))
sketch3.addConstraint(Sketcher.Constraint("DistanceY", -1, 1, 75, 1, 26.1))
sketch3.addConstraint(Sketcher.Constraint("DistanceY", 2, 3, -1, 1, 31.75))
sketch3.addConstraint(Sketcher.Constraint("DistanceY", 18, 3, -1, 1, 29.25))
sketch3.addConstraint(Sketcher.Constraint("DistanceX", 2, 3, -1, 1, 95.535))
sketch3.addConstraint(Sketcher.Constraint("DistanceX", 6, 3, -1, 1, 34.465))
sketch3.addConstraint(Sketcher.Constraint("DistanceY", 34, 3, -1, 1, 26.075))
sketch3.addConstraint(Sketcher.Constraint("DistanceX", 66, 3, -1, 1, 96.105))
sketch3.addConstraint(Sketcher.Constraint("DistanceX", 70, 3, -1, 1, 33.895))
sketch3.addConstraint(Sketcher.Constraint("DistanceX", -1, 1, 34, 3, 107.7875))
sketch3.addConstraint(Sketcher.Constraint("DistanceX", -1, 1, 38, 3, 158.5875))
sketch3.addConstraint(Sketcher.Constraint("DistanceX", -1, 1, 50, 3, 120.6875))
sketch3.addConstraint(Sketcher.Constraint("DistanceY", 50, 3, -1, 1, 45.6375))
sketch3.addConstraint(Sketcher.Constraint("DistanceX", -1, 1, 18, 3, 27.14375))
sketch3.addConstraint(Sketcher.Constraint("DistanceX", -1, 1, 22, 3, 84.29375))
sketch3.addConstraint(Sketcher.Constraint("DistanceX", -1, 1, 58, 3, 43.21875))
pocket2 = body.newObject("PartDesign::Pocket", "Pocket001")
pocket2.Profile = sketch3
pocket2.Type = "ThroughAll"
doc.recompute()

fillet = body.newObject("PartDesign::Fillet", "Fillet")
fillet.Base = (pocket2, edges_at(pocket2, [
    (196.27, 1.015, -32.5),
    (196.27, 1.015, 32.5),
    (196.27, 1.015, 60),
    (-196.27, 1.015, 60),
    (-196.27, 1.015, -60),
    (196.27, 1.015, -60),
]))
fillet.Radius = 5

# Sketch on XZ plane
sketch4 = body.newObject("Sketcher::SketchObject", "Sketch003")
sketch4.AttachmentSupport = (doc.getObject("XZ_Plane"), [""])
sketch4.MapMode = "FlatFace"
sketch4.AttachmentOffset = App.Placement(Vector(0, 0, -2.03), App.Rotation())
sketch4.addGeometry(Part.Circle(Vector(-110, -45, 0), Vector(0, 0, 1), 3.35), False)
sketch4.addGeometry(Part.Circle(Vector(0, -30, 0), Vector(0, 0, 1), 3.35), False)
sketch4.addGeometry(Part.Circle(Vector(95, -45, 0), Vector(0, 0, 1), 3.35), False)
sketch4.addGeometry(Part.Circle(Vector(95, 45, 0), Vector(0, 0, 1), 3.35), False)
sketch4.addGeometry(Part.Circle(Vector(0, 30, 0), Vector(0, 0, 1), 3.35), False)
sketch4.addGeometry(Part.Circle(Vector(-110, 45, 0), Vector(0, 0, 1), 3.35), False)
sketch4.addConstraint(Sketcher.Constraint("Equal", 0, 1))
sketch4.addConstraint(Sketcher.Constraint("Equal", 1, 2))
sketch4.addConstraint(Sketcher.Constraint("Equal", 2, 3))
sketch4.addConstraint(Sketcher.Constraint("Equal", 3, 4))
sketch4.addConstraint(Sketcher.Constraint("Equal", 4, 5))
sketch4.addConstraint(Sketcher.Constraint("Symmetric", 1, 3, 4, 3, -1, 1))
sketch4.addConstraint(Sketcher.Constraint("Symmetric", 2, 3, 3, 3, -1))
sketch4.addConstraint(Sketcher.Constraint("Symmetric", 0, 3, 5, 3, -1))
sketch4.addConstraint(Sketcher.Constraint("PointOnObject", 1, 3, -2))
sketch4.addConstraint(Sketcher.Constraint("Horizontal", 0, 3, 2, 3))
sketch4.addConstraint(Sketcher.Constraint("Diameter", 0, 6.7))
sketch4.addConstraint(Sketcher.Constraint("DistanceX", 0, 3, -1, 1, 110.0))
sketch4.addConstraint(Sketcher.Constraint("DistanceY", 0, 3, -1, 1, 45.0))
sketch4.addConstraint(Sketcher.Constraint("DistanceY", 1, 3, -1, 1, 30.0))
sketch4.addConstraint(Sketcher.Constraint("DistanceX", -1, 1, 2, 3, 95.0))
pocket3 = body.newObject("PartDesign::Pocket", "Pocket002")
pocket3.Profile = sketch4
pocket3.Type = "ThroughAll"
pocket3.Reversed = True

doc.recompute()
